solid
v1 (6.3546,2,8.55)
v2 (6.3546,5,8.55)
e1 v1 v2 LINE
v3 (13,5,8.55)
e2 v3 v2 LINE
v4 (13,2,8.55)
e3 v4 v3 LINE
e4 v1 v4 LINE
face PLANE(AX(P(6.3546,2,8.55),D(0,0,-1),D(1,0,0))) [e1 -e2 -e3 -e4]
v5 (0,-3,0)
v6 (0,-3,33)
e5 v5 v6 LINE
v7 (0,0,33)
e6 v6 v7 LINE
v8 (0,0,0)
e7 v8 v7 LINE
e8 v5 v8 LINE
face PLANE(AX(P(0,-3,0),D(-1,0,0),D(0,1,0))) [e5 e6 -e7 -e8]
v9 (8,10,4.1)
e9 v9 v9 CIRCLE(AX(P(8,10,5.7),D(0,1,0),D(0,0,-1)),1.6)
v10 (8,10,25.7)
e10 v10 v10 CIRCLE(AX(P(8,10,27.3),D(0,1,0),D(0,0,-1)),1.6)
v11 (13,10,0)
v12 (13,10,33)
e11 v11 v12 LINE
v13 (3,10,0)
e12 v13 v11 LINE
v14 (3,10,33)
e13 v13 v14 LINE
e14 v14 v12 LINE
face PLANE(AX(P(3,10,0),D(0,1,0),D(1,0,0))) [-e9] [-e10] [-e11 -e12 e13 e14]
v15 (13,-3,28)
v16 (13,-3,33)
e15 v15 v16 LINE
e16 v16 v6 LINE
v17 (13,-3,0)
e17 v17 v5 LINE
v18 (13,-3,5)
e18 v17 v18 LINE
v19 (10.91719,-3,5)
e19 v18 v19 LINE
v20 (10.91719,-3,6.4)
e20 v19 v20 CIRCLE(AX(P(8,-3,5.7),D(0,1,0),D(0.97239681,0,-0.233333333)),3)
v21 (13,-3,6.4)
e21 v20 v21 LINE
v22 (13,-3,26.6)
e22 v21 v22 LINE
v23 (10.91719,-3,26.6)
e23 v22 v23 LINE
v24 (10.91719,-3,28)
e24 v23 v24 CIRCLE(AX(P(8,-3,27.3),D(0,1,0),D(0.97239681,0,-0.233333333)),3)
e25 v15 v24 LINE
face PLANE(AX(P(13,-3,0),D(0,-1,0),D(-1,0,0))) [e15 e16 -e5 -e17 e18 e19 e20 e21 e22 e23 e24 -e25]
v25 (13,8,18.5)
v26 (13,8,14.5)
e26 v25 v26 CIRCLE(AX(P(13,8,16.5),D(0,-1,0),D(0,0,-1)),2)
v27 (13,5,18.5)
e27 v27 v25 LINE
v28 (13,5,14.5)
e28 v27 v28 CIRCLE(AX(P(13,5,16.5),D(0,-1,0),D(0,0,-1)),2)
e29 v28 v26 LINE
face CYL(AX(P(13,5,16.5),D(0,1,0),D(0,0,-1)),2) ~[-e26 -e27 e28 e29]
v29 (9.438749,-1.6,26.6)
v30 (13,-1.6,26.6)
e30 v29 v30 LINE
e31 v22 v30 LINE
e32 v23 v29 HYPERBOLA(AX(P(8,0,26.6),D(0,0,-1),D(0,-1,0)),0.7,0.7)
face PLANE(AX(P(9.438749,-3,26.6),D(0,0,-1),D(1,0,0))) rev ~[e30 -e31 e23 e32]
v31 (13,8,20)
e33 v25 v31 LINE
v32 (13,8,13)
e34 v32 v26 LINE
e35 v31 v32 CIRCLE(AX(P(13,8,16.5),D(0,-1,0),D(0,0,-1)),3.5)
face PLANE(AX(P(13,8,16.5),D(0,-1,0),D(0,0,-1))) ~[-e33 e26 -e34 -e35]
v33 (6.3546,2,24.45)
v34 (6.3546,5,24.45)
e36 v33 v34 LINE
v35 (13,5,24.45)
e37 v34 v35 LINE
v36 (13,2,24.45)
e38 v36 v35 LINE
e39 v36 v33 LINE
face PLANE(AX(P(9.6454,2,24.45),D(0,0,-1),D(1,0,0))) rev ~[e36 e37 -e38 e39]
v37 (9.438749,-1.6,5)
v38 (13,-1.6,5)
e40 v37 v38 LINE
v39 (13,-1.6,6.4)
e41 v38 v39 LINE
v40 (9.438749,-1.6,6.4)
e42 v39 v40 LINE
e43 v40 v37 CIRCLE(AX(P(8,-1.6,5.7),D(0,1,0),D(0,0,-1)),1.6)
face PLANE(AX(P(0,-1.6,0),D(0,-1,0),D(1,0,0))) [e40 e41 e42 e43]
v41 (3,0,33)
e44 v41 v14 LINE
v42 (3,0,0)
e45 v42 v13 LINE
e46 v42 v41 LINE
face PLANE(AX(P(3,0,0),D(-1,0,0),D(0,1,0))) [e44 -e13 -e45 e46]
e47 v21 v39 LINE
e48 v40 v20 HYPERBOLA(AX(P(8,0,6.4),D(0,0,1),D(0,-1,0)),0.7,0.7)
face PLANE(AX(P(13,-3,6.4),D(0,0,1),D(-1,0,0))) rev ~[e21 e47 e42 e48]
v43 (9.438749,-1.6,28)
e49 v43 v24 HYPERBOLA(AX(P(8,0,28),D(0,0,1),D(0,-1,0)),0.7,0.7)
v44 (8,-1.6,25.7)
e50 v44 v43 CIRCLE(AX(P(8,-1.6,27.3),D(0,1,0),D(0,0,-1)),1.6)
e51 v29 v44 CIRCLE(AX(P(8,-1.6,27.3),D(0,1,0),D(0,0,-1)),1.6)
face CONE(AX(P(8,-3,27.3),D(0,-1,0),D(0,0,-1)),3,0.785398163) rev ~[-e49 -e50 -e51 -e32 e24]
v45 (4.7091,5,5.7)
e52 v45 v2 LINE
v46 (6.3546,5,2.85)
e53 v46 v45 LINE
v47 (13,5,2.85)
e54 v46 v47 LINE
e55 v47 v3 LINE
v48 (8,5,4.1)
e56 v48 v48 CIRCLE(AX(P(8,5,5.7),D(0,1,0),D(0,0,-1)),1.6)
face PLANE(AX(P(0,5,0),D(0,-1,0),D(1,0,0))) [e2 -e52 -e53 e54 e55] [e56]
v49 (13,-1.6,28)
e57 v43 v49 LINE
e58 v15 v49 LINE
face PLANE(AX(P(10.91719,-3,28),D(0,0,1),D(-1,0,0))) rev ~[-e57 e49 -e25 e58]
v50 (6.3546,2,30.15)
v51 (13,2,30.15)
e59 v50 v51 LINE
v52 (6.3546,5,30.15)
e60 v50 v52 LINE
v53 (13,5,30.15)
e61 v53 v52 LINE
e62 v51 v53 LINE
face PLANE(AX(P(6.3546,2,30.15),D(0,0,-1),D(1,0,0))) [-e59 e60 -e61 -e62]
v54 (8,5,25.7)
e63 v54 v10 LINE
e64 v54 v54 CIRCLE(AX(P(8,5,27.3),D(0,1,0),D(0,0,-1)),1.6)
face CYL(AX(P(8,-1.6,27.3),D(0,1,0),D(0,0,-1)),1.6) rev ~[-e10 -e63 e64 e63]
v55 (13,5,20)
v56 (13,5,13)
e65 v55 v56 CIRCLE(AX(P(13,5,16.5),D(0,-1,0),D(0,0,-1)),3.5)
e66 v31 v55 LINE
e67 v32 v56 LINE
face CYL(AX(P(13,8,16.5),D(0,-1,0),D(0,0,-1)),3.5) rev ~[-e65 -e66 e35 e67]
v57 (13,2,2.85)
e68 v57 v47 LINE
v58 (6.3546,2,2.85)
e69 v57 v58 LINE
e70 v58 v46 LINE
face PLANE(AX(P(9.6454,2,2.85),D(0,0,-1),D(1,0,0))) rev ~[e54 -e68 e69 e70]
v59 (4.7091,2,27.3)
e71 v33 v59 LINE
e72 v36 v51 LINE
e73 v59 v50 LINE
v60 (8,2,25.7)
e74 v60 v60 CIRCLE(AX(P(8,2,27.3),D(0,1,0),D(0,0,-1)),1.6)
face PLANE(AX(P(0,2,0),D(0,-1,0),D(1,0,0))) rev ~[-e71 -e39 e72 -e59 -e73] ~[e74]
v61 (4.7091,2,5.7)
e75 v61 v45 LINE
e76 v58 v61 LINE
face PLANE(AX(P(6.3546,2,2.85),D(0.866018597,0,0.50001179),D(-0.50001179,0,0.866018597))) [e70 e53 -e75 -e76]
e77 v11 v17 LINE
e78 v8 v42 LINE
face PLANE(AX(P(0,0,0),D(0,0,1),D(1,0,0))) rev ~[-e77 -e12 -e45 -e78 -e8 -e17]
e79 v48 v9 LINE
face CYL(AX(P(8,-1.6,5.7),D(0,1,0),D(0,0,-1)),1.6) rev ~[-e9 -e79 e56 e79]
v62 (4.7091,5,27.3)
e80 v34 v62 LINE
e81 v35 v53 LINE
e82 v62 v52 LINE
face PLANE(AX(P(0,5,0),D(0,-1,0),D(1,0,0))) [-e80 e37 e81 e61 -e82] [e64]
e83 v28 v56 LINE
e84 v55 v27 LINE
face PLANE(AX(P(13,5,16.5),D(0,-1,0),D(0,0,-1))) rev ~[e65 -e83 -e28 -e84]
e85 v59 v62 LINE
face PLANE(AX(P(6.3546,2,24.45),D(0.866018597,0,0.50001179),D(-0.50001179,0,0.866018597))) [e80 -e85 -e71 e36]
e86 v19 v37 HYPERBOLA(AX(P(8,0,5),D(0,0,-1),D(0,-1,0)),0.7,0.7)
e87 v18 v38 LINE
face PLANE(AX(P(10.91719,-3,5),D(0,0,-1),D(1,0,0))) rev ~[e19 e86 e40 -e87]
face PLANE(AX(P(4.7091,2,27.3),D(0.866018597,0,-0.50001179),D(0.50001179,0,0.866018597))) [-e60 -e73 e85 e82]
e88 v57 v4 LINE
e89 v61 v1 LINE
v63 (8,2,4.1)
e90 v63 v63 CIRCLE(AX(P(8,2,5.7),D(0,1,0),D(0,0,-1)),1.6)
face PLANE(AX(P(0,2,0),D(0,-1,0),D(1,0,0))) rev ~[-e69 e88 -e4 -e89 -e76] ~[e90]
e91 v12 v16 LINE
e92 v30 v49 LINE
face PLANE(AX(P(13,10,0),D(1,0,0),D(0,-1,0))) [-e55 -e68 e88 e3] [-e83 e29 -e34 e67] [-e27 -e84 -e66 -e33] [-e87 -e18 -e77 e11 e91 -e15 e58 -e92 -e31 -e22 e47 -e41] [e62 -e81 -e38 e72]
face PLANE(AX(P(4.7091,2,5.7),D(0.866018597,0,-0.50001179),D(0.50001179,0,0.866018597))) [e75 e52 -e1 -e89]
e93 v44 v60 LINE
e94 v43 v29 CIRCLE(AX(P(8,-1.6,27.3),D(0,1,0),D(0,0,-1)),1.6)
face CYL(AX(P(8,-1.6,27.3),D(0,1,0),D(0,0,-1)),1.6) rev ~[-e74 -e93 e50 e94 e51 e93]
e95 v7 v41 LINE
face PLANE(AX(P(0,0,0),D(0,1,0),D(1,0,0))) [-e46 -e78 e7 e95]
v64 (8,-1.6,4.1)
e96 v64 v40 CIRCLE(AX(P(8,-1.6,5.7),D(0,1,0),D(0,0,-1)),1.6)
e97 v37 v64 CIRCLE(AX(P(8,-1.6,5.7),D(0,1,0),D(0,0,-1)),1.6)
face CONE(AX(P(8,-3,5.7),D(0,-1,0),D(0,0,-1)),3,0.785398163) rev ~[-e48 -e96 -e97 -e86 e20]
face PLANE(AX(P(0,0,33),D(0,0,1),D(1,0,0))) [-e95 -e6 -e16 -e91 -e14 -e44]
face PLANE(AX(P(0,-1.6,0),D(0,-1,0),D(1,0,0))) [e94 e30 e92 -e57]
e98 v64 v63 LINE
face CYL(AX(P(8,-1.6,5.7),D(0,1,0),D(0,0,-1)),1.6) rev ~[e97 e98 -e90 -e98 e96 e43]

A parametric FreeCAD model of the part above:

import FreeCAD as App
import Part
import Sketcher
from FreeCAD import Vector
Q = App.Units.Quantity


def add_polygon(sketch, points):
    """Adds a closed chain of lines whose ends are joined by coincident constraints."""
    first, n = sketch.GeometryCount, len(points)
    for a, b in zip(points, points[1:] + points[:1]):
        sketch.addGeometry(Part.LineSegment(App.Vector(*a, 0), App.Vector(*b, 0)), False)
    for i in range(n):
        sketch.addConstraint(Sketcher.Constraint("Coincident", first + i, 2, first + (i + 1) % n, 1))

doc = App.newDocument("Part")
body = doc.addObject("PartDesign::Body", "Body")

sketch1 = body.newObject("Sketcher::SketchObject", "Sketch")
sketch1.AttachmentSupport = (doc.getObject("XY_Plane"), [""])
sketch1.MapMode = "FlatFace"
add_polygon(sketch1, [(3, 0), (0, 0), (0, -3), (13, -3), (13, 10), (3, 10)])
sketch1.addConstraint([
    Sketcher.Constraint("Horizontal", 0),
    Sketcher.Constraint("Vertical", 1),
    Sketcher.Constraint("Horizontal", 2),
    Sketcher.Constraint("Vertical", 3),
    Sketcher.Constraint("Horizontal", 4),
    Sketcher.Constraint("Vertical", 5),
    Sketcher.Constraint("Coincident", 0, 2, -1, 1),
    Sketcher.Constraint("Equal", 0, 1),
    Sketcher.Constraint("Equal", 2, 3),
    Sketcher.Constraint("DistanceX", 0, 2, 0, 1, Q("3 mm")),
    Sketcher.Constraint("DistanceX", 4, 2, 4, 1, Q("10 mm")),
])
pad1 = body.newObject("PartDesign::Pad", "Pad")
pad1.Profile = sketch1
pad1.Length = 33

sketch2 = body.newObject("Sketcher::SketchObject", "Sketch001")
sketch2.AttachmentSupport = (doc.getObject("XZ_Plane"), [""])
sketch2.MapMode = "FlatFace"
sketch2.AttachmentOffset = App.Placement(Vector(0, 0, 3), App.Rotation())
sketch2.addGeometry([
    Part.Circle(Vector(8, 27.3, 0), Vector(0, 0, 1), 1.6),
    Part.Circle(Vector(8, 5.7, 0), Vector(0, 0, 1), 1.6),
], False)
sketch2.addConstraint([
    Sketcher.Constraint("Equal", 0, 1),
    Sketcher.Constraint("Vertical", 0, 3, 1, 3),
    Sketcher.Constraint("Diameter", 0, Q("3.2 mm")),
    Sketcher.Constraint("DistanceX", -1, 1, 0, 3, Q("8 mm")),
    Sketcher.Constraint("DistanceY", -1, 1, 0, 3, Q("27.3 mm")),
    Sketcher.Constraint("DistanceY", -1, 1, 1, 3, Q("5.7 mm")),
])
doc.recompute()
hole = body.newObject("PartDesign::Hole", "Hole")
hole.Profile = sketch2
hole.ThreadType = "None"
hole.Diameter = 3.2
hole.DepthType = "ThroughAll"
hole.HoleCutType = "Countersink"
hole.HoleCutDiameter = 6
hole.HoleCutCountersinkAngle = 90

sketch3 = body.newObject("Sketcher::SketchObject", "Sketch002")
sketch3.AttachmentSupport = (doc.getObject("XZ_Plane"), [""])
sketch3.MapMode = "FlatFace"
sketch3.AttachmentOffset = App.Placement(Vector(0, 0, 3), App.Rotation())
add_polygon(sketch3, [(13, 26.6), (13, 28), (8, 28), (8, 26.6)])
add_polygon(sketch3, [(13, 5), (13, 6.4), (8, 6.4), (8, 5)])
sketch3.addConstraint([
    Sketcher.Constraint("Vertical", 0),
    Sketcher.Constraint("Horizontal", 1),
    Sketcher.Constraint("Vertical", 2),
    Sketcher.Constraint("Horizontal", 3),
    Sketcher.Constraint("Vertical", 4),
    Sketcher.Constraint("Horizontal", 5),
    Sketcher.Constraint("Vertical", 6),
    Sketcher.Constraint("Horizontal", 7),
    Sketcher.Constraint("Vertical", 3, 2, 4, 2),
    Sketcher.Constraint("Vertical", 2, 2, 5, 2),
    Sketcher.Constraint("Equal", 2, 4),
    Sketcher.Constraint("DistanceY", 0, 1, 0, 2, Q("1.4 mm")),
    Sketcher.Constraint("DistanceX", 1, 2, 1, 1, Q("5 mm")),
    Sketcher.Constraint("DistanceX", -1, 1, 0, 2, Q("13 mm")),
    Sketcher.Constraint("DistanceY", -1, 1, 0, 2, Q("28 mm")),
    Sketcher.Constraint("DistanceY", -1, 1, 6, 2, Q("5 mm")),
])
pocket1 = body.newObject("PartDesign::Pocket", "Pocket")
pocket1.Profile = sketch3
pocket1.Length = 1.4

sketch4 = body.newObject("Sketcher::SketchObject", "Sketch003")
sketch4.AttachmentSupport = (doc.getObject("XZ_Plane"), [""])
sketch4.MapMode = "FlatFace"
sketch4.AttachmentOffset = App.Placement(Vector(0, 0, -2), App.Rotation())
add_polygon(sketch4, [(6.4, 2.9), (13, 2.9), (13, 8.6), (6.4, 8.6), (4.7, 5.7)])
add_polygon(sketch4, [(6.4, 24.4), (13, 24.4), (13, 30.1), (6.4, 30.1), (4.7, 27.3)])
sketch4.addConstraint([
    Sketcher.Constraint("Horizontal", 0),
    Sketcher.Constraint("Vertical", 1),
    Sketcher.Constraint("Horizontal", 2),
    Sketcher.Constraint("Horizontal", 5),
    Sketcher.Constraint("Vertical", 6),
    Sketcher.Constraint("Horizontal", 7),
    Sketcher.Constraint("Parallel", 3, 8),
    Sketcher.Constraint("Parallel", 4, 9),
    Sketcher.Constraint("Vertical", 2, 2, 4, 2),
    Sketcher.Constraint("Vertical", 1, 2, 5, 2),
    Sketcher.Constraint("Vertical", 4, 2, 7, 2),
    Sketcher.Constraint("Vertical", 3, 2, 8, 2),
    Sketcher.Constraint("Vertical", 7, 2, 9, 2),
    Sketcher.Constraint("Equal", 3, 4),
    Sketcher.Constraint("DistanceY", 1, 1, 1, 2, Q("5.7 mm")),
    Sketcher.Constraint("DistanceY", -1, 1, 3, 2, Q("5.7 mm")),
    Sketcher.Constraint("DistanceY", 0, 2, 5, 2, Q("21.6 mm")),
    Sketcher.Constraint("Angle", 3, Q("-120.0008 deg")),
    Sketcher.Constraint("DistanceX", -1, 1, 0, 2, Q("13 mm")),
    Sketcher.Constraint("DistanceX", 0, 1, 0, 2, Q("6.6454 mm")),
])
pocket2 = body.newObject("PartDesign::Pocket", "Pocket001")
pocket2.Profile = sketch4
pocket2.Length = 3

sketch5 = body.newObject("Sketcher::SketchObject", "Sketch004")
sketch5.AttachmentSupport = (doc.getObject("YZ_Plane"), [""])
sketch5.MapMode = "FlatFace"
sketch5.AttachmentOffset = App.Placement(Vector(0, 0, 13), App.Rotation())
add_polygon(sketch5, [(8, 13), (8, 14.5), (5, 14.5), (5, 13)])
sketch5.addGeometry(Part.LineSegment(Vector(8, 16.5, 0), Vector(5, 16.5, 0)), True)
sketch5.addConstraint([
    Sketcher.Constraint("Vertical", 0),
    Sketcher.Constraint("Horizontal", 1),
    Sketcher.Constraint("Vertical", 2),
    Sketcher.Constraint("Horizontal", 3),
    Sketcher.Constraint("Horizontal", 4),
    Sketcher.Constraint("Vertical", 3, 2, 4, 1),
    Sketcher.Constraint("Vertical", 2, 2, 4, 2),
    Sketcher.Constraint("DistanceX", 1, 2, 1, 1, Q("3 mm")),
    Sketcher.Constraint("DistanceY", 0, 1, 0, 2, Q("1.5 mm")),
    Sketcher.Constraint("DistanceY", 0, 2, 4, 1, Q("2 mm")),
    Sketcher.Constraint("DistanceX", -1, 1, 0, 2, Q("8 mm")),
    Sketcher.Constraint("DistanceY", -1, 1, 2, 2, Q("13 mm")),
])
groove = body.newObject("PartDesign::Groove", "Groove")
groove.Profile = sketch5
groove.ReferenceAxis = (sketch5, ["Axis0"])
groove.Angle = 360

doc.recompute()
